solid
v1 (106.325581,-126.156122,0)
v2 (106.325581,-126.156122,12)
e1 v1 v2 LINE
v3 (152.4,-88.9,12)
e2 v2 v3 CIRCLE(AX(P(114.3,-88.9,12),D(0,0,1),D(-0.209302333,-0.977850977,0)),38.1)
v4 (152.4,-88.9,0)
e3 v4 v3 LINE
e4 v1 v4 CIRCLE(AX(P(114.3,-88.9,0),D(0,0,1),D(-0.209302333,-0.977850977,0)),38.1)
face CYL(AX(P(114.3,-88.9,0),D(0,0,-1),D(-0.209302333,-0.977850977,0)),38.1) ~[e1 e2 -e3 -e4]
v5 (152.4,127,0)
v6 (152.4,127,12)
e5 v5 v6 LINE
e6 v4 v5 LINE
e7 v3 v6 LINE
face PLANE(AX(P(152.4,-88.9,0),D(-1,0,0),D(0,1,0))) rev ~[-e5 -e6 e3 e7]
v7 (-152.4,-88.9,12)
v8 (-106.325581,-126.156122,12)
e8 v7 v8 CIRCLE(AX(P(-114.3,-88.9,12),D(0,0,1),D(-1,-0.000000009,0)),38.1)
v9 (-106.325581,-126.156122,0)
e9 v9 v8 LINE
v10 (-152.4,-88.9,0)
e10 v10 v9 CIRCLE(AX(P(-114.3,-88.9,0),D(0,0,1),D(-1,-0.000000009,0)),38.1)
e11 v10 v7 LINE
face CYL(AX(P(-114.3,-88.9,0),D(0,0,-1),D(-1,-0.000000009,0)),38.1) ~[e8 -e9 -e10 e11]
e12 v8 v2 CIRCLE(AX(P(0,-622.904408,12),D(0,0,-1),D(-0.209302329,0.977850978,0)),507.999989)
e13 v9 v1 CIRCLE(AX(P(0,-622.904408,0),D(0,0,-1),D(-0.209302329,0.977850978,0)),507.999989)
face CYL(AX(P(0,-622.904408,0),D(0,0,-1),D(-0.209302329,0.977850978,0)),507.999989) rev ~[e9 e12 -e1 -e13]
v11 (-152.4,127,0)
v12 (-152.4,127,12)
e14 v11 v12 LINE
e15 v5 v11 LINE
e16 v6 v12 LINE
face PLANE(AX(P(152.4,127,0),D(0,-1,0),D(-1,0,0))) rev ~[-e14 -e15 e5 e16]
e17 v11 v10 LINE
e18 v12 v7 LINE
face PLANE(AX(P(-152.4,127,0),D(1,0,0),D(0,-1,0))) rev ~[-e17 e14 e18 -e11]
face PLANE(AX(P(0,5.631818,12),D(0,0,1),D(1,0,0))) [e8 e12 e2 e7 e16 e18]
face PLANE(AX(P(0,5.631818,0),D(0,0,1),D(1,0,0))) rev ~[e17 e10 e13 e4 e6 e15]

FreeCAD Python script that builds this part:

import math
import FreeCAD as App
import Part
import Sketcher
from FreeCAD import Vector
Q = App.Units.Quantity

doc = App.newDocument("Part")
body = doc.addObject("PartDesign::Body", "Body")

# Sketch on XY plane
sketch1 = doc.addObject("Sketcher::SketchObject", "Sketch")
body.addObject(sketch1)
sketch1.AttachmentSupport = (doc.XY_Plane, [""])
sketch1.MapMode = "FlatFace"
sketch1.addGeometry(Part.LineSegment(Vector(152, 127, 0), Vector(-152, 127, 0)), False)
sketch1.addGeometry(Part.LineSegment(Vector(-152, 127, 0), Vector(-152, -89, 0)), False)
sketch1.addGeometry(Part.ArcOfCircle(Part.Circle(Vector(-114, -89, 0), Vector(0, 0, 1), 38), math.radians(-180), math.radians(-78)), False)
sketch1.addGeometry(Part.ArcOfCircle(Part.Circle(Vector(0, -623, 0), Vector(0, 0, 1), 508), math.radians(78), math.radians(102)), False)
sketch1.addGeometry(Part.ArcOfCircle(Part.Circle(Vector(114, -89, 0), Vector(0, 0, 1), 38), math.radians(-102), math.radians(0)), False)
sketch1.addGeometry(Part.LineSegment(Vector(152, -89, 0), Vector(152, 127, 0)), False)
sketch1.addConstraint(Sketcher.Constraint("Coincident", 0, 2, 1, 1))
sketch1.addConstraint(Sketcher.Constraint("Tangent", 1, 2, 2, 1))
sketch1.addConstraint(Sketcher.Constraint("Tangent", 2, 2, 3, 2))
sketch1.addConstraint(Sketcher.Constraint("Tangent", 3, 1, 4, 1))
sketch1.addConstraint(Sketcher.Constraint("Tangent", 4, 2, 5, 1))
sketch1.addConstraint(Sketcher.Constraint("Coincident", 5, 2, 0, 1))
sketch1.addConstraint(Sketcher.Constraint("Horizontal", 0))
sketch1.addConstraint(Sketcher.Constraint("Vertical", 1))
sketch1.addConstraint(Sketcher.Constraint("Vertical", 5))
sketch1.addConstraint(Sketcher.Constraint("Equal", 2, 4))
sketch1.addConstraint(Sketcher.Constraint("Symmetric", 2, 3, 4, 3, -2))
sketch1.addConstraint(Sketcher.Constraint("Radius", 2, Q("1.5 in")))
sketch1.addConstraint(Sketcher.Constraint("DistanceX", 0, 2, 0, 1, Q("12 in")))
sketch1.addConstraint(Sketcher.Constraint("DistanceY", 1, 2, 1, 1, Q("8.5 in")))
sketch1.addConstraint(Sketcher.Constraint("DistanceY", -1, 1, 0, 2, Q("5 in")))
sketch1.addConstraint(Sketcher.Constraint("Radius", 3, Q("507.999989 mm")))
pad1 = doc.addObject("PartDesign::Pad", "Pad")
body.addObject(pad1)
pad1.Profile = sketch1
pad1.Length = 12

doc.recompute()
